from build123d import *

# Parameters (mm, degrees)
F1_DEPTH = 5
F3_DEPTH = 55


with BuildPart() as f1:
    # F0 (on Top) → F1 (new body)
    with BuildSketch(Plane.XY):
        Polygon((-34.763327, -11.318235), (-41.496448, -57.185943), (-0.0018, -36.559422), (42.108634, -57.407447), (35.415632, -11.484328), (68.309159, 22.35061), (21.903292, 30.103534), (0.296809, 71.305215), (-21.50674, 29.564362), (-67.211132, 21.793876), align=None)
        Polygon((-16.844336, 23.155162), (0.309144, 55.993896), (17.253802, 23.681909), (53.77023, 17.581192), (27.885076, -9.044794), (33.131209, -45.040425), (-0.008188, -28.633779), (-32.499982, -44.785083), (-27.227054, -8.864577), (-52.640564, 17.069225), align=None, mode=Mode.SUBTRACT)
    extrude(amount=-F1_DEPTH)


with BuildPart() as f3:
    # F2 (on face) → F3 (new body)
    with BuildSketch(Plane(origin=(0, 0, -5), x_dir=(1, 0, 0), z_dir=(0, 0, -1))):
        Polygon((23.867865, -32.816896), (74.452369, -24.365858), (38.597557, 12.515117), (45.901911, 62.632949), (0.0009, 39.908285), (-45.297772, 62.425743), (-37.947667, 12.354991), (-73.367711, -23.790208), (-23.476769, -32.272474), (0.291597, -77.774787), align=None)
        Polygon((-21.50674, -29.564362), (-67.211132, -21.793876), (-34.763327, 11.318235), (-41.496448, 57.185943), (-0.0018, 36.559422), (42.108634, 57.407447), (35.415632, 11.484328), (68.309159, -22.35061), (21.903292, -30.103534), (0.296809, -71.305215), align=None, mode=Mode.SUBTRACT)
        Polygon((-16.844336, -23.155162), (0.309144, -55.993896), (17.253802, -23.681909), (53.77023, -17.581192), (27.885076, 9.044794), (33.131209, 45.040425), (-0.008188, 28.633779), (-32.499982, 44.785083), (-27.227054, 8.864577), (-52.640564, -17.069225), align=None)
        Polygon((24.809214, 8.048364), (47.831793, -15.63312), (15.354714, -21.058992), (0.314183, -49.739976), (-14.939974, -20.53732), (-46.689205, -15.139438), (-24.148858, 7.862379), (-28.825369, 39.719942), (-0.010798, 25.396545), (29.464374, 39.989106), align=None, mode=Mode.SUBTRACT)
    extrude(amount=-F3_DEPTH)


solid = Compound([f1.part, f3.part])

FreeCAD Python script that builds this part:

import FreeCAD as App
import Part
import Sketcher

V = App.Vector
Q = App.Units.Quantity


def add_polygon(sketch, points):
    """Adds a closed chain of lines whose ends are joined by coincident constraints."""
    first, n = sketch.GeometryCount, len(points)
    for a, b in zip(points, points[1:] + points[:1]):
        sketch.addGeometry(Part.LineSegment(App.Vector(*a, 0), App.Vector(*b, 0)), False)
    for i in range(n):
        sketch.addConstraint(Sketcher.Constraint("Coincident", first + i, 2, first + (i + 1) % n, 1))

doc = App.newDocument("Part")
body = doc.addObject("PartDesign::Body", "Body")

# Sketch on XY plane
sketch1 = doc.addObject("Sketcher::SketchObject", "Sketch")
body.addObject(sketch1)
sketch1.AttachmentSupport = (doc.XY_Plane, [""])
sketch1.MapMode = "FlatFace"
add_polygon(sketch1, [(-34.763327, -11.318235), (-41.496448, -57.185943), (-0.0018, -36.559422), (42.108634, -57.407447), (35.415632, -11.484328), (68.309159, 22.35061), (21.903292, 30.103534), (0.296809, 71.305215), (-21.50674, 29.564362), (-67.211132, 21.793876)])  # lines 0-9
add_polygon(sketch1, [(-52.640564, 17.069225), (-16.844336, 23.155162), (0.309144, 55.993896), (17.253802, 23.681909), (53.77023, 17.581192), (27.885076, -9.044794), (33.131209, -45.040425), (-0.008188, -28.633779), (-32.499982, -44.785083), (-27.227054, -8.864577)])  # lines 10-19
sketch1.addConstraint([
    Sketcher.Constraint("DistanceX", 1, 2, -1, 1, Q("0.0018 mm")),
    Sketcher.Constraint("DistanceY", 10, 2, 7, 2, Q("6.4092 mm")),
    Sketcher.Constraint("DistanceY", 16, 2, 18, 2, Q("19.769202 mm")),
    Sketcher.Constraint("DistanceY", 18, 2, 19, 2, Q("25.933802 mm")),
    Sketcher.Constraint("Distance", 1, Q("46.338528 mm")),
    Sketcher.Constraint("Distance", 5, Q("47.049042 mm")),
    Sketcher.Constraint("Distance", 8, Q("46.360241 mm")),
    Sketcher.Constraint("Distance", 9, Q("46.360241 mm")),
    Sketcher.Constraint("Distance", 12, Q("36.485421 mm")),
    Sketcher.Constraint("Distance", 14, Q("37.134678 mm")),
    Sketcher.Constraint("Distance", 16, Q("36.978341 mm")),
    Sketcher.Constraint("Distance", 18, Q("36.305461 mm")),
    Sketcher.Constraint("DistanceY", 1, 2, -1, 1, Q("36.559422 mm")),
    Sketcher.Constraint("DistanceX", -1, 1, 4, 2, Q("68.309159 mm")),
    Sketcher.Constraint("DistanceY", -1, 1, 4, 2, Q("22.35061 mm")),
    Sketcher.Constraint("DistanceX", -1, 1, 6, 2, Q("0.296809 mm")),
    Sketcher.Constraint("DistanceX", 7, 2, -1, 1, Q("21.50674 mm")),
    Sketcher.Constraint("DistanceY", -1, 1, 7, 2, Q("29.564362 mm")),
    Sketcher.Constraint("DistanceY", -1, 1, 12, 2, Q("23.681909 mm")),
    Sketcher.Constraint("DistanceX", -1, 1, 13, 2, Q("53.77023 mm")),
    Sketcher.Constraint("DistanceX", -1, 1, 15, 2, Q("33.131209 mm")),
    Sketcher.Constraint("DistanceX", 16, 2, -1, 1, Q("0.008188 mm")),
    Sketcher.Constraint("DistanceY", 16, 2, -1, 1, Q("28.633779 mm")),
    Sketcher.Constraint("DistanceY", 0, 2, 1, 2, Q("20.626521 mm")),
    Sketcher.Constraint("DistanceY", 2, 2, 3, 2, Q("45.923119 mm")),
    Sketcher.Constraint("DistanceX", 0, 2, 3, 2, Q("76.91208 mm")),
    Sketcher.Constraint("DistanceX", 5, 2, 3, 2, Q("13.51234 mm")),
    Sketcher.Constraint("DistanceY", 2, 2, 5, 2, Q("87.510981 mm")),
    Sketcher.Constraint("DistanceY", 5, 2, 6, 2, Q("41.201681 mm")),
    Sketcher.Constraint("DistanceY", 0, 2, 8, 2, Q("78.979819 mm")),
    Sketcher.Constraint("DistanceX", 0, 2, 9, 2, Q("6.733121 mm")),
    Sketcher.Constraint("DistanceX", 9, 2, 10, 2, Q("17.918991 mm")),
    Sketcher.Constraint("DistanceY", 11, 2, 6, 2, Q("15.311319 mm")),
    Sketcher.Constraint("DistanceX", 11, 2, 5, 2, Q("21.594148 mm")),
    Sketcher.Constraint("DistanceY", 13, 2, 5, 2, Q("12.522342 mm")),
    Sketcher.Constraint("DistanceY", 15, 2, 14, 2, Q("35.995631 mm")),
    Sketcher.Constraint("DistanceY", 0, 2, 17, 2, Q("12.40086 mm")),
    Sketcher.Constraint("DistanceX", 17, 2, 15, 2, Q("65.631191 mm")),
    Sketcher.Constraint("DistanceX", 8, 2, 19, 2, Q("14.570568 mm")),
    Sketcher.Constraint("Distance", 2, Q("46.988603 mm")),
])
pad1 = doc.addObject("PartDesign::Pad", "Pad")
body.addObject(pad1)
pad1.Profile = sketch1
pad1.Length = 5
pad1.Reversed = True
body2 = doc.addObject("PartDesign::Body", "Body001")
body2.AllowCompound = True

# Sketch on XY plane
sketch2 = doc.addObject("Sketcher::SketchObject", "Sketch001")
body2.addObject(sketch2)
sketch2.AttachmentSupport = (doc.getObject("XY_Plane001"), [""])
sketch2.MapMode = "FlatFace"
sketch2.AttachmentOffset = App.Placement(V(0, 0, -5), App.Rotation())
add_polygon(sketch2, [(23.867865, 32.816896), (74.452369, 24.365858), (38.597557, -12.515117), (45.901911, -62.632949), (0.0009, -39.908285), (-45.297772, -62.425743), (-37.947667, -12.354991), (-73.367711, 23.790208), (-23.476769, 32.272474), (0.291597, 77.774787)])  # lines 0-9
add_polygon(sketch2, [(0.296809, 71.305215), (-21.50674, 29.564362), (-67.211132, 21.793876), (-34.763327, -11.318235), (-41.496448, -57.185943), (-0.0018, -36.559422), (42.108634, -57.407447), (35.415632, -11.484328), (68.309159, 22.35061), (21.903292, 30.103534)])  # lines 10-19
add_polygon(sketch2, [(-16.844336, 23.155162), (0.309144, 55.993896), (17.253802, 23.681909), (53.77023, 17.581192), (27.885076, -9.044794), (33.131209, -45.040425), (-0.008188, -28.633779), (-32.499982, -44.785083), (-27.227054, -8.864577), (-52.640564, 17.069225)])  # lines 20-29
add_polygon(sketch2, [(29.464374, -39.989106), (24.809214, -8.048364), (47.831793, 15.63312), (15.354714, 21.058992), (0.314183, 49.739976), (-14.939974, 20.53732), (-46.689205, 15.139438), (-24.148858, -7.862379), (-28.825369, -39.719942), (-0.010798, -25.396545)])  # lines 30-39
sketch2.addConstraint([
    Sketcher.Constraint("DistanceY", 9, 2, 20, 2, Q("23.177 mm")),
    Sketcher.Constraint("DistanceY", 13, 2, 37, 2, Q("17.466001 mm")),
    Sketcher.Constraint("DistanceX", 38, 2, 14, 2, Q("0.008998 mm")),
    Sketcher.Constraint("DistanceX", -1, 1, 3, 2, Q("0.0009 mm")),
    Sketcher.Constraint("DistanceX", 14, 2, -1, 1, Q("0.0018 mm")),
    Sketcher.Constraint("DistanceY", 4, 2, 0, 2, Q("86.791601 mm")),
    Sketcher.Constraint("DistanceY", 5, 2, 6, 2, Q("36.145199 mm")),
    Sketcher.Constraint("DistanceX", 5, 2, 7, 2, Q("14.470898 mm")),
    Sketcher.Constraint("DistanceY", 11, 2, 7, 2, Q("10.478598 mm")),
    Sketcher.Constraint("DistanceY", 4, 2, 13, 2, Q("5.2398 mm")),
    Sketcher.Constraint("DistanceX", 1, 2, 17, 2, Q("29.711602 mm")),
    Sketcher.Constraint("DistanceY", 26, 2, 3, 2, Q("4.876798 mm")),
    Sketcher.Constraint("DistanceY", 25, 2, 27, 2, Q("19.769202 mm")),
    Sketcher.Constraint("DistanceY", 29, 2, 10, 2, Q("6.4092 mm")),
    Sketcher.Constraint("DistanceX", 32, 2, 30, 2, Q("9.4545 mm")),
    Sketcher.Constraint("DistanceY", 27, 2, 36, 2, Q("1.002198 mm")),
    Sketcher.Constraint("DistanceY", 36, 2, 34, 2, Q("28.399699 mm")),
    Sketcher.Constraint("DistanceX", 5, 2, 37, 2, Q("9.122298 mm")),
    Sketcher.Constraint("Distance", 3, Q("51.218289 mm")),
    Sketcher.Constraint("Distance", 11, Q("46.360241 mm")),
    Sketcher.Constraint("Distance", 12, Q("46.360241 mm")),
    Sketcher.Constraint("Distance", 14, Q("46.338528 mm")),
    Sketcher.Constraint("Distance", 18, Q("47.049042 mm")),
    Sketcher.Constraint("Distance", 21, Q("36.485421 mm")),
    Sketcher.Constraint("Distance", 23, Q("37.134678 mm")),
    Sketcher.Constraint("Distance", 25, Q("36.978341 mm")),
    Sketcher.Constraint("Distance", 27, Q("36.305461 mm")),
    Sketcher.Constraint("Distance", 30, Q("32.278189 mm")),
    Sketcher.Constraint("Distance", 34, Q("32.946691 mm")),
    Sketcher.Constraint("Distance", 38, Q("32.178241 mm")),
    Sketcher.Constraint("DistanceX", -1, 1, 0, 2, Q("74.452369 mm")),
    Sketcher.Constraint("DistanceX", -1, 1, 2, 2, Q("45.901911 mm")),
    Sketcher.Constraint("DistanceY", 2, 2, -1, 1, Q("62.632949 mm")),
    Sketcher.Constraint("DistanceY", 5, 2, -1, 1, Q("12.354991 mm")),
    Sketcher.Constraint("DistanceX", 6, 2, -1, 1, Q("73.367711 mm")),
    Sketcher.Constraint("DistanceX", 7, 2, -1, 1, Q("23.476769 mm")),
    Sketcher.Constraint("DistanceX", 10, 2, -1, 1, Q("21.50674 mm")),
    Sketcher.Constraint("DistanceY", -1, 1, 10, 2, Q("29.564362 mm")),
    Sketcher.Constraint("DistanceY", 14, 2, -1, 1, Q("36.559422 mm")),
    Sketcher.Constraint("DistanceX", -1, 1, 17, 2, Q("68.309159 mm")),
    Sketcher.Constraint("DistanceY", -1, 1, 17, 2, Q("22.35061 mm")),
    Sketcher.Constraint("DistanceX", -1, 1, 19, 2, Q("0.296809 mm")),
    Sketcher.Constraint("DistanceY", -1, 1, 21, 2, Q("23.681909 mm")),
    Sketcher.Constraint("DistanceX", -1, 1, 22, 2, Q("53.77023 mm")),
    Sketcher.Constraint("DistanceX", -1, 1, 24, 2, Q("33.131209 mm")),
    Sketcher.Constraint("DistanceX", 25, 2, -1, 1, Q("0.008188 mm")),
    Sketcher.Constraint("DistanceY", 25, 2, -1, 1, Q("28.633779 mm")),
    Sketcher.Constraint("DistanceY", -1, 1, 31, 2, Q("15.63312 mm")),
    Sketcher.Constraint("DistanceY", -1, 1, 32, 2, Q("21.058992 mm")),
    Sketcher.Constraint("DistanceX", 36, 2, -1, 1, Q("24.148858 mm")),
    Sketcher.Constraint("DistanceX", 4, 2, 1, 2, Q("83.895329 mm")),
    Sketcher.Constraint("DistanceY", 5, 2, 0, 2, Q("36.720849 mm")),
    Sketcher.Constraint("DistanceY", 3, 2, 7, 2, Q("72.180759 mm")),
    Sketcher.Constraint("DistanceY", 1, 2, 7, 2, Q("44.787591 mm")),
    Sketcher.Constraint("DistanceY", 6, 2, 8, 2, Q("53.984579 mm")),
    Sketcher.Constraint("DistanceX", 8, 2, 1, 2, Q("38.30596 mm")),
    Sketcher.Constraint("DistanceY", 7, 2, 9, 2, Q("0.544422 mm")),
    Sketcher.Constraint("DistanceX", 5, 2, 12, 2, Q("3.18434 mm")),
    Sketcher.Constraint("DistanceY", 15, 2, 1, 2, Q("44.89233 mm")),
    Sketcher.Constraint("DistanceY", 1, 2, 16, 2, Q("1.030789 mm")),
    Sketcher.Constraint("DistanceY", 18, 2, 9, 2, Q("2.713362 mm")),
    Sketcher.Constraint("DistanceX", 18, 2, 16, 2, Q("13.51234 mm")),
    Sketcher.Constraint("DistanceY", 19, 2, 8, 2, Q("6.469572 mm")),
    Sketcher.Constraint("DistanceX", 20, 2, 9, 2, Q("23.558721 mm")),
    Sketcher.Constraint("DistanceX", 20, 2, 18, 2, Q("21.594148 mm")),
    Sketcher.Constraint("DistanceY", 1, 2, 22, 2, Q("30.096309 mm")),
    Sketcher.Constraint("DistanceX", 23, 2, 1, 2, Q("10.712481 mm")),
    Sketcher.Constraint("DistanceX", 4, 2, 26, 2, Q("12.79779 mm")),
    Sketcher.Constraint("DistanceX", 11, 2, 28, 2, Q("14.570568 mm")),
    Sketcher.Constraint("DistanceY", 28, 2, 11, 2, Q("4.724651 mm")),
    Sketcher.Constraint("DistanceY", 23, 2, 30, 2, Q("0.99643 mm")),
    Sketcher.Constraint("DistanceX", 30, 2, 16, 2, Q("10.606418 mm")),
    Sketcher.Constraint("DistanceX", 29, 2, 32, 2, Q("32.19905 mm")),
    Sketcher.Constraint("DistanceX", 20, 2, 33, 2, Q("0.005039 mm")),
    Sketcher.Constraint("DistanceY", 33, 2, 20, 2, Q("6.25392 mm")),
    Sketcher.Constraint("DistanceX", 28, 2, 35, 2, Q("5.951359 mm")),
    Sketcher.Constraint("DistanceY", 35, 2, 11, 2, Q("6.654438 mm")),
    Sketcher.Constraint("DistanceY", 24, 2, 39, 2, Q("5.051319 mm")),
    Sketcher.Constraint("DistanceX", 39, 2, 15, 2, Q("12.64426 mm")),
    Sketcher.Constraint("Distance", 31, Q("33.028046 mm")),
])
pad2 = doc.addObject("PartDesign::Pad", "Pad001")
body2.addObject(pad2)
pad2.Profile = sketch2
pad2.Length = 55

doc.recompute()
